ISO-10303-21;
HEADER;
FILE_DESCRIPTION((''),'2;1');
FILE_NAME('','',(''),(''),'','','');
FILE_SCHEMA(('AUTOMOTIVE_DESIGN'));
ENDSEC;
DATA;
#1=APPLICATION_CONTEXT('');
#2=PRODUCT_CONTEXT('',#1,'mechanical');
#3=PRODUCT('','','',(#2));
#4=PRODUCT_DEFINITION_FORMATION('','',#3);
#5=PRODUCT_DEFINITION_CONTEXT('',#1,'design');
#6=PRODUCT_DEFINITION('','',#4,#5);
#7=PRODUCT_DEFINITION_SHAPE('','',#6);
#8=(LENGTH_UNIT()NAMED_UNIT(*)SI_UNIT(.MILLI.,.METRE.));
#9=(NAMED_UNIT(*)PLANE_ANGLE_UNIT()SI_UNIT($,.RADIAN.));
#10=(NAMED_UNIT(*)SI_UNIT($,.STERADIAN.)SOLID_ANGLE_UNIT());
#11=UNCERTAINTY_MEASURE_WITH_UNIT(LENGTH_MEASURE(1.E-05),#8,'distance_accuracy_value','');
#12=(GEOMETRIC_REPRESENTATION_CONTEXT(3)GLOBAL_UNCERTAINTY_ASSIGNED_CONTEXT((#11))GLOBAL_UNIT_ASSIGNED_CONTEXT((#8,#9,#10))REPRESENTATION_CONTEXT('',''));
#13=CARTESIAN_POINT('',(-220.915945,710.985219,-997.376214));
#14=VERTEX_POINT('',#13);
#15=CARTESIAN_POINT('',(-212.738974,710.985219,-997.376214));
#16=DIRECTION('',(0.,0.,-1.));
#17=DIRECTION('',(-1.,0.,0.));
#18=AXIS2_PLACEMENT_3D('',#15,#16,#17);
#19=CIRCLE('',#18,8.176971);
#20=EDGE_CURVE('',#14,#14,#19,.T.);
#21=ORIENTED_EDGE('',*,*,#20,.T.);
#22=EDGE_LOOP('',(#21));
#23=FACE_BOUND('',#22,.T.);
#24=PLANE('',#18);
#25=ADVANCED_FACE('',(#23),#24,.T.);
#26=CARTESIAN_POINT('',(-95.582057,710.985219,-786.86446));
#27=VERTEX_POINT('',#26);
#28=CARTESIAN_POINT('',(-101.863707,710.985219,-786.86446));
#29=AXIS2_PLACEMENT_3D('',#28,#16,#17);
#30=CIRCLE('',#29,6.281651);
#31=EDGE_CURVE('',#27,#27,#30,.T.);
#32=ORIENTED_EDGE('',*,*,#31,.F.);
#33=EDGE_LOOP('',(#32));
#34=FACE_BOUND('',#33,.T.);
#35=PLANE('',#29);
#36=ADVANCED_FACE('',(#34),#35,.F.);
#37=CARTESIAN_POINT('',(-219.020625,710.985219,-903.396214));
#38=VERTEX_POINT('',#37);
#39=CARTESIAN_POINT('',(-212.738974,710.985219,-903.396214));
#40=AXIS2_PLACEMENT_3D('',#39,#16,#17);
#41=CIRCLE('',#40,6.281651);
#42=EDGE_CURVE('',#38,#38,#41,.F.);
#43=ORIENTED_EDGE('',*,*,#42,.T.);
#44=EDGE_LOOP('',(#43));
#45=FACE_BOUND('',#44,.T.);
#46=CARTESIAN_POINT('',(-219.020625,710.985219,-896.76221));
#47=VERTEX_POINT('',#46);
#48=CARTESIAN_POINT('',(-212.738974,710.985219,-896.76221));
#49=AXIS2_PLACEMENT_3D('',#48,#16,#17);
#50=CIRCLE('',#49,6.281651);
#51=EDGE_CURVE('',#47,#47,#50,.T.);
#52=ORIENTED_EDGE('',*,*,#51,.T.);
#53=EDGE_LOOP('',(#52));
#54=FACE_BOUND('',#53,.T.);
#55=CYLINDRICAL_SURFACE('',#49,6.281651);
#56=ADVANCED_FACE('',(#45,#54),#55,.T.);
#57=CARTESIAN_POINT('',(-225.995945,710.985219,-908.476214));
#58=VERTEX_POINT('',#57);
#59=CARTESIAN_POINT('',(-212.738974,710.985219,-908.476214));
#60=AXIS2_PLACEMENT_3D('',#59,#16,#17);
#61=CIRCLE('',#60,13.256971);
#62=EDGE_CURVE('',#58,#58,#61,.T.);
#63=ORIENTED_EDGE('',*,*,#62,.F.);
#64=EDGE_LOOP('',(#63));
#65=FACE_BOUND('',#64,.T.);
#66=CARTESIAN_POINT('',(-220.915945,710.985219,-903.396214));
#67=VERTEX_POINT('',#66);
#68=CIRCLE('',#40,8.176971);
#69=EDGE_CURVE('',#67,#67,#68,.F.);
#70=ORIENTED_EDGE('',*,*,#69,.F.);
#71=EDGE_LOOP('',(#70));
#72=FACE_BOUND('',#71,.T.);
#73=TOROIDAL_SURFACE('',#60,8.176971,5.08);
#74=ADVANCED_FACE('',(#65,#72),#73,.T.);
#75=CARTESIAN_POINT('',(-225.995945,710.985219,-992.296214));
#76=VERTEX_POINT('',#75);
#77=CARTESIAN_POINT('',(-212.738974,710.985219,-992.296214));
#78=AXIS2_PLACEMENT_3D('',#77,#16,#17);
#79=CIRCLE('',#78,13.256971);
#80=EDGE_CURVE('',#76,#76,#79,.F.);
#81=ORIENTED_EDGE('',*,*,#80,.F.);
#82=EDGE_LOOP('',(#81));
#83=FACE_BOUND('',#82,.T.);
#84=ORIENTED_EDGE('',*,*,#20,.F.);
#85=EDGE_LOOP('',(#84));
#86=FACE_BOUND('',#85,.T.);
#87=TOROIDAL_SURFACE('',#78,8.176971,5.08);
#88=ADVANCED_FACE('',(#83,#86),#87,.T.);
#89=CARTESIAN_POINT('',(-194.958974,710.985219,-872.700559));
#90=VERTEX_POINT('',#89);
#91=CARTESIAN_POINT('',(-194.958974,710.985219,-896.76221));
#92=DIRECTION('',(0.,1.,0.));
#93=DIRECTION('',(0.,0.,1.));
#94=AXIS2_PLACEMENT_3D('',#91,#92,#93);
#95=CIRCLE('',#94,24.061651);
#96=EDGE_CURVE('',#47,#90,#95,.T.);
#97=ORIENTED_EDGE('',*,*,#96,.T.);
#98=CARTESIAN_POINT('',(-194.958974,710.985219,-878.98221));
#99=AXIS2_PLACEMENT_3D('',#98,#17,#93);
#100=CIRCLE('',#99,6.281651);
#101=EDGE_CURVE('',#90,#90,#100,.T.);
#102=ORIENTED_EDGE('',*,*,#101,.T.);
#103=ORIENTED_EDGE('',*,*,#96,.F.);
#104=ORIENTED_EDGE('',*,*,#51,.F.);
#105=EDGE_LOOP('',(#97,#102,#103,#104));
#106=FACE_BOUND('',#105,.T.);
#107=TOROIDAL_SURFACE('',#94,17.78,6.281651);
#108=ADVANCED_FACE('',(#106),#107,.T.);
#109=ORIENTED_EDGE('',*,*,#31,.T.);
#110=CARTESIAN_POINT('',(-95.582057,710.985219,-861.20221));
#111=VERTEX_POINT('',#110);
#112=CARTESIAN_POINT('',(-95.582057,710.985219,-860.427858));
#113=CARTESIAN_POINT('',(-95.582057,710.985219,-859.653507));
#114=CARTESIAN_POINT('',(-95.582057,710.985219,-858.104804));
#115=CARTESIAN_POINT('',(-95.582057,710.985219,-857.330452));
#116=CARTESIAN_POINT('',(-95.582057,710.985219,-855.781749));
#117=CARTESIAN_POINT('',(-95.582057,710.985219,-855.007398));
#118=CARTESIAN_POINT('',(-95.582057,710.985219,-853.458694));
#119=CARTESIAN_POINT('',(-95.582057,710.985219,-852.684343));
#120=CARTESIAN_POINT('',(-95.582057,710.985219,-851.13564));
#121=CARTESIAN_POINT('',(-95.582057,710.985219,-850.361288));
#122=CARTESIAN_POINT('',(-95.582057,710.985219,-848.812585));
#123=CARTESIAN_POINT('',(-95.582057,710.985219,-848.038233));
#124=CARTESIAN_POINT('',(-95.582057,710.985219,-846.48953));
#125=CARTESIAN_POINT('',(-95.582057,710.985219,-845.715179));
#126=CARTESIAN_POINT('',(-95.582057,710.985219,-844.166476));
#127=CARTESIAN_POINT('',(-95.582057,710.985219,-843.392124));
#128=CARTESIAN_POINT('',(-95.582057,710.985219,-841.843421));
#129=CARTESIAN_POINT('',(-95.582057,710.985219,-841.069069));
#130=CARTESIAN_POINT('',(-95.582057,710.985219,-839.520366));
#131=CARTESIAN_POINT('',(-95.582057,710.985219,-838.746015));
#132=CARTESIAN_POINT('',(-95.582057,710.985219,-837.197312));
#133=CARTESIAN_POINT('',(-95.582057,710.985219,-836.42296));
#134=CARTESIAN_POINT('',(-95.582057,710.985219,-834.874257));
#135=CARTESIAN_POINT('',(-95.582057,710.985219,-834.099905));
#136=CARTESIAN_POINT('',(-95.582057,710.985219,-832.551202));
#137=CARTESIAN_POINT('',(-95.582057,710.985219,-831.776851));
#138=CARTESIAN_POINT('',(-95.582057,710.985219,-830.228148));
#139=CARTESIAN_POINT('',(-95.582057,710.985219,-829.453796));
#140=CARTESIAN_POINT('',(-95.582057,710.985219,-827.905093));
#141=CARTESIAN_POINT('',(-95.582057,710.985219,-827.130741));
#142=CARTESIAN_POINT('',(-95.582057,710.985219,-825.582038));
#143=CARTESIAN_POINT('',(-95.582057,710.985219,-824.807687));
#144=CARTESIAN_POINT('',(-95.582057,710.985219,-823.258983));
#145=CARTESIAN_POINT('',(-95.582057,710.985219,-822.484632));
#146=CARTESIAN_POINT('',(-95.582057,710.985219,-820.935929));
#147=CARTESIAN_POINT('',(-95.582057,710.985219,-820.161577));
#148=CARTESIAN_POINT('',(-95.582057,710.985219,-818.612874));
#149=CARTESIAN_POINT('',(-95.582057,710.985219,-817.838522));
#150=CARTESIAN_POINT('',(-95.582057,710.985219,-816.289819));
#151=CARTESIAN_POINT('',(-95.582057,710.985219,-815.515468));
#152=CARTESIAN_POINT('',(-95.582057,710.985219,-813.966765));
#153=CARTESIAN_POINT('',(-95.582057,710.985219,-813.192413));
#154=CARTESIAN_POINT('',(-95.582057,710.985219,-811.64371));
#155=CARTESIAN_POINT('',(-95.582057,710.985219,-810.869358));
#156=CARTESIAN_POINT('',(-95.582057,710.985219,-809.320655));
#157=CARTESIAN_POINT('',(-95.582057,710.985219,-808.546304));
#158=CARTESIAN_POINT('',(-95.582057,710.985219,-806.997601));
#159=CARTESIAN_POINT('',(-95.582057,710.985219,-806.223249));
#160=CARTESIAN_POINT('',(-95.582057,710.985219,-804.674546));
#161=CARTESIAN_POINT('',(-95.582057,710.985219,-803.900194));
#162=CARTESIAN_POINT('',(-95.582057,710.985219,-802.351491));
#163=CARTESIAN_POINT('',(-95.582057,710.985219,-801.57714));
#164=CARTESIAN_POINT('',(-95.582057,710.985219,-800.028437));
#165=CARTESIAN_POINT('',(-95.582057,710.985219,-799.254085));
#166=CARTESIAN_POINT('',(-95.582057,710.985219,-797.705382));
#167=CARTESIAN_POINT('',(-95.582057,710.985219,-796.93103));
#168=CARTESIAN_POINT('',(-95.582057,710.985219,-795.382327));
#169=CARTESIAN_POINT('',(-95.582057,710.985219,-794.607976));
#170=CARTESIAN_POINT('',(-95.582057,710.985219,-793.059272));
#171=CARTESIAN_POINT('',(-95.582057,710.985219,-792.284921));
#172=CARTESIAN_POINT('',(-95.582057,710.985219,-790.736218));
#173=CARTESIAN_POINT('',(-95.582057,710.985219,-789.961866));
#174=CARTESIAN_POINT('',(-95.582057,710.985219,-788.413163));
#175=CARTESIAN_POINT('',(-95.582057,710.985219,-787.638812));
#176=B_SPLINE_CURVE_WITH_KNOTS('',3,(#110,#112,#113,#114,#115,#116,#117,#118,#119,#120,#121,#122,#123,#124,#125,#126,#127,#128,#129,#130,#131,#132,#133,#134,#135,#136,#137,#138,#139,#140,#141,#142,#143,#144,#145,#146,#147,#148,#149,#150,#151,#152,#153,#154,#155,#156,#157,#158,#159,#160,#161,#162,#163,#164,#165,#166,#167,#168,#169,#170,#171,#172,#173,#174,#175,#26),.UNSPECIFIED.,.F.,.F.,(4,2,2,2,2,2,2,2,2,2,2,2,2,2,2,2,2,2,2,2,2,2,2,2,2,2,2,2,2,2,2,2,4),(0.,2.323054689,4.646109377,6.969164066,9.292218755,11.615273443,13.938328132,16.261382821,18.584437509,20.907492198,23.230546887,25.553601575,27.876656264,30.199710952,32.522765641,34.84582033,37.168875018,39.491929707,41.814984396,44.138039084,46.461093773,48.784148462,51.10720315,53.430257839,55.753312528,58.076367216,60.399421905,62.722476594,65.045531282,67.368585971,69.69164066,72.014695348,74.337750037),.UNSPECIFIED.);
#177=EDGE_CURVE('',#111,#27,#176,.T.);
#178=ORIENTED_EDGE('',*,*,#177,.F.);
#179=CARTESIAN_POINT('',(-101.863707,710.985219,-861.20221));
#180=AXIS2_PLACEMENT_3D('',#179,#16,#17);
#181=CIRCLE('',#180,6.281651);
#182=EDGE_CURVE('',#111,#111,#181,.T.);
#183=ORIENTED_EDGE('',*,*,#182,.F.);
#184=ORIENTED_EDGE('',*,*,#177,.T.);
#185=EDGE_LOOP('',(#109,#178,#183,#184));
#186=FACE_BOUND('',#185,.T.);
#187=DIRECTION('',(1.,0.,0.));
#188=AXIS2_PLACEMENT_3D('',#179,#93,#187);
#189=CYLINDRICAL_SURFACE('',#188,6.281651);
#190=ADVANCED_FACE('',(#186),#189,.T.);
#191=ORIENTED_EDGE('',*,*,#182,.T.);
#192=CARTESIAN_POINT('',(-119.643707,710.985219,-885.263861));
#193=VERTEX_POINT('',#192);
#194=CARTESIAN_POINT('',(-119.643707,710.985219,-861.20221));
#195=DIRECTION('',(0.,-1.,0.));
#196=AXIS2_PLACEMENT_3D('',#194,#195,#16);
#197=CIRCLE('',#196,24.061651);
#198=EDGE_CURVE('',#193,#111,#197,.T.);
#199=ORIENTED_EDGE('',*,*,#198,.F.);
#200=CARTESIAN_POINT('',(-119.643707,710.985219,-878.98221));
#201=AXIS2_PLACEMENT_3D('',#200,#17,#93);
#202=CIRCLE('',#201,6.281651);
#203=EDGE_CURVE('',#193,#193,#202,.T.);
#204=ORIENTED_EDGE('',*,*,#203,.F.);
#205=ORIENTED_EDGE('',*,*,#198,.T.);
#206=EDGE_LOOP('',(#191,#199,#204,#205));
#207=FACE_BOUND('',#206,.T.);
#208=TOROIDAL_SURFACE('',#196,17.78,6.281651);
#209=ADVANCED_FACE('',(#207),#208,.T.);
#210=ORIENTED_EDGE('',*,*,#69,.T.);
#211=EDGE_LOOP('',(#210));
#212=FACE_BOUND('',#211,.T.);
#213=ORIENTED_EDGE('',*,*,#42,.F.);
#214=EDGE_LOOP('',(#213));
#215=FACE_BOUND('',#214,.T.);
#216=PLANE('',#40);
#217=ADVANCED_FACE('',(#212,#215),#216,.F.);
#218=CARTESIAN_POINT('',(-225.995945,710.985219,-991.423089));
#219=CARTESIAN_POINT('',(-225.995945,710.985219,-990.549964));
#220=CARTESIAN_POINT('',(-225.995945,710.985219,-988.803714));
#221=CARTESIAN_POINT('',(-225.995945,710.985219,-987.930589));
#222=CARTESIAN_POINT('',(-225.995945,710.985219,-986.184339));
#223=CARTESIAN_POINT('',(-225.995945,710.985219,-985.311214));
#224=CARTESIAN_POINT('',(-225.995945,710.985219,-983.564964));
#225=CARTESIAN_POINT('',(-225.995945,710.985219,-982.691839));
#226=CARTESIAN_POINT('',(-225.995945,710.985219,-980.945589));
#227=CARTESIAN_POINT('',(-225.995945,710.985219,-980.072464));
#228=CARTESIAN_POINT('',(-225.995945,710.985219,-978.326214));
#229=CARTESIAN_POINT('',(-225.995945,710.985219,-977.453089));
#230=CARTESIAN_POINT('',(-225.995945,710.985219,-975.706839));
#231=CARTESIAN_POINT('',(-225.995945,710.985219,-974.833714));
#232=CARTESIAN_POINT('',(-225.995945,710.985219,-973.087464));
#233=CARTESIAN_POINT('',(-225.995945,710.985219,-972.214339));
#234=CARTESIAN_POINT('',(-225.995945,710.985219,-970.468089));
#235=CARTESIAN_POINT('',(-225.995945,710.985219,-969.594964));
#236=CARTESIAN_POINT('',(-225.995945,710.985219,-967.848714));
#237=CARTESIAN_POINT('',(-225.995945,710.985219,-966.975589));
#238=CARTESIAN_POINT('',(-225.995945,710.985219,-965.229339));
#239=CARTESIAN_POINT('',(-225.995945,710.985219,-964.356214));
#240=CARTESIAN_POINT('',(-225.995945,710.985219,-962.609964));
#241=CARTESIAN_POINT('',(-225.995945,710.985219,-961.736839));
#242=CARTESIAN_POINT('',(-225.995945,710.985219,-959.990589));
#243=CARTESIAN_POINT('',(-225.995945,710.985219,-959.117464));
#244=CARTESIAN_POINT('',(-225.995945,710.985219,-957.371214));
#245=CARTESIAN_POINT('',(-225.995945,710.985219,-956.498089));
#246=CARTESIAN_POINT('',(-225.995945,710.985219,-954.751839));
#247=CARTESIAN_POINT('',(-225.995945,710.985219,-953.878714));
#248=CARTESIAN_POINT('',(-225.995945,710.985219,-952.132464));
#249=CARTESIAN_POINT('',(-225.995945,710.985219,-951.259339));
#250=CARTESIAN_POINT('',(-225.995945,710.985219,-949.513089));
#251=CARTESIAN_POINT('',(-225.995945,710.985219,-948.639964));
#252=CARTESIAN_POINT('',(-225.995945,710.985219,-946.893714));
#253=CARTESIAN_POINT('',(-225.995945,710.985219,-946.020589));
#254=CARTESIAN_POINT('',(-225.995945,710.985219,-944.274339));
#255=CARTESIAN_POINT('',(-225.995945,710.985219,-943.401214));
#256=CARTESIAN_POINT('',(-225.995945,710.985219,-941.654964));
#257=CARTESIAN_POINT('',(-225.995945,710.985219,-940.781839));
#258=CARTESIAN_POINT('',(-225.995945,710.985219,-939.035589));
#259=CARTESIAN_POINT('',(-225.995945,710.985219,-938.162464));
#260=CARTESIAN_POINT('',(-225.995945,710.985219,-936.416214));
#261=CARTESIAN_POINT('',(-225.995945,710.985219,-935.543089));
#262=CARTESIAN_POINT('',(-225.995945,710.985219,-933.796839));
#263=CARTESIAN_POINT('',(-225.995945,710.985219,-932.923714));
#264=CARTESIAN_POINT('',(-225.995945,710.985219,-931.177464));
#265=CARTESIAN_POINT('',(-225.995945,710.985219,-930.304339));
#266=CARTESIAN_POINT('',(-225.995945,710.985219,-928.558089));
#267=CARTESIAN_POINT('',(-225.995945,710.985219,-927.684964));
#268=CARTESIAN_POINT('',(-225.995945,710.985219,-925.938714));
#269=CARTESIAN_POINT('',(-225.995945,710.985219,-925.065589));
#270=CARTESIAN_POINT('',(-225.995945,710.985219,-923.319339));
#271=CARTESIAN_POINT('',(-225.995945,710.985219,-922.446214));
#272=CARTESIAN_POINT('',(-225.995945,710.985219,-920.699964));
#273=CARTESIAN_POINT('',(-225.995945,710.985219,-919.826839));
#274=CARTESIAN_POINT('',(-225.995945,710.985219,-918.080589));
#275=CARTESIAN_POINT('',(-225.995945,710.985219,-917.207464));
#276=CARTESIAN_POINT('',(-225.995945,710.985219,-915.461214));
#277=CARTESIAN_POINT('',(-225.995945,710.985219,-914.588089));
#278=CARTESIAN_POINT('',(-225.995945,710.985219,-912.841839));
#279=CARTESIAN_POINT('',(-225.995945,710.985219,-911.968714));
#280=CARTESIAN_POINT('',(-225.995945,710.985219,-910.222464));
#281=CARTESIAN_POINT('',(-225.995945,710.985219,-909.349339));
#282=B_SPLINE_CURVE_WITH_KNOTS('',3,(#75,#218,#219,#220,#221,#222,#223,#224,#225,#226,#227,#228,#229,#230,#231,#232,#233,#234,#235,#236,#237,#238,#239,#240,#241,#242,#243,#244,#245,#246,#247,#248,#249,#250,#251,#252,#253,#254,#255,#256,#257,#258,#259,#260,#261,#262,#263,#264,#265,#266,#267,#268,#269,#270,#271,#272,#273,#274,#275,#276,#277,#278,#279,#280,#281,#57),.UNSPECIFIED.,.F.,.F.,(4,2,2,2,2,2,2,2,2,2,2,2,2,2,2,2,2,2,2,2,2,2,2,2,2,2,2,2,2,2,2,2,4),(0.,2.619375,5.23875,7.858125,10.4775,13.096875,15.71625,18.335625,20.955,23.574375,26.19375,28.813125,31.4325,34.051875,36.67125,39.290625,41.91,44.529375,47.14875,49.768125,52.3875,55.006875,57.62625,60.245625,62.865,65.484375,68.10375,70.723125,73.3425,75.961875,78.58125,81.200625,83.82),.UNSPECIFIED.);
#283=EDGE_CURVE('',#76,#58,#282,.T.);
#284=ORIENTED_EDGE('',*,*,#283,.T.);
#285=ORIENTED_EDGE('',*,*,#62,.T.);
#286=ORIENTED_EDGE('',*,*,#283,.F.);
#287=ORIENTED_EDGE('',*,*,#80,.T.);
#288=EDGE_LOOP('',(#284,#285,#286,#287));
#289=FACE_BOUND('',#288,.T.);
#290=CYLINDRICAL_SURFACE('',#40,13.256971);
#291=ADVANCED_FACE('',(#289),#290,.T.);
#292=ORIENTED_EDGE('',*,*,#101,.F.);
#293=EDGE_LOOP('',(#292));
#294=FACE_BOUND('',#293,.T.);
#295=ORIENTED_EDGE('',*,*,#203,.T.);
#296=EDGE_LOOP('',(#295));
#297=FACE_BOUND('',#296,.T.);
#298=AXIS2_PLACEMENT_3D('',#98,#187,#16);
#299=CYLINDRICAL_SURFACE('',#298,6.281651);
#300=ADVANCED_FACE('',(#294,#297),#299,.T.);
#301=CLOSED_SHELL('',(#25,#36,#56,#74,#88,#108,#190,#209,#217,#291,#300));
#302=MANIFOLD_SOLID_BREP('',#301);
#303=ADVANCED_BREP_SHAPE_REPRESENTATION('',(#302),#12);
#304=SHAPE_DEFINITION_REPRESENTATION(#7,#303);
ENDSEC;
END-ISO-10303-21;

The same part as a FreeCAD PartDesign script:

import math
import FreeCAD as App
import Part
import Sketcher
from FreeCAD import Vector
Q = App.Units.Quantity


def edges_at(feature, points):
    """Names of the edges that pass closest to the given points."""
    edges = feature.Shape.Edges
    near = lambda p: min(range(len(edges)), key=lambda i: edges[i].distToShape(Part.Vertex(*p))[0])
    return sorted({f"Edge{near(p) + 1}" for p in points})

doc = App.newDocument("Part")
body = doc.addObject("PartDesign::Body", "Body")

# Sketch on XY plane
sketch1 = body.newObject("Sketcher::SketchObject", "Sketch")
sketch1.AttachmentSupport = (doc.getObject("XY_Plane"), [""])
sketch1.MapMode = "FlatFace"
sketch1.AttachmentOffset = App.Placement(Vector(0, 0, -997.376214), App.Rotation())
sketch1.addGeometry(Part.Circle(Vector(-213, 711, 0), Vector(0, 0, 1), 6), False)
sketch1.addConstraint([
    Sketcher.Constraint("Diameter", 0, 12.563301),
    Sketcher.Constraint("DistanceY", -1, 1, 0, 3, 710.985219),
    Sketcher.Constraint("DistanceX", 0, 3, -1, 1, 212.738974),
])

# Sketch on XZ plane
sketch2 = body.newObject("Sketcher::SketchObject", "Sketch001")
sketch2.AttachmentSupport = (doc.getObject("XZ_Plane"), [""])
sketch2.MapMode = "FlatFace"
sketch2.AttachmentOffset = App.Placement(Vector(0, 0, -710.985219), App.Rotation())
sketch2.addGeometry([
    Part.LineSegment(Vector(-102, -787, 0), Vector(-102, -861, 0)),  # 0
    Part.ArcOfCircle(Part.Circle(Vector(-120, -861, 0), Vector(0, 0, 1), 18), math.radians(-90), math.radians(0)),  # 1
    Part.LineSegment(Vector(-120, -879, 0), Vector(-195, -879, 0)),  # 2
    Part.ArcOfCircle(Part.Circle(Vector(-195, -897, 0), Vector(0, 0, 1), 18), math.radians(90), math.radians(180)),  # 3
    Part.LineSegment(Vector(-213, -897, 0), Vector(-213, -997, 0)),  # 4
], False)
sketch2.addConstraint([
    Sketcher.Constraint("Tangent", 0, 2, 1, 2),
    Sketcher.Constraint("Tangent", 1, 1, 2, 1),
    Sketcher.Constraint("Tangent", 2, 2, 3, 1),
    Sketcher.Constraint("Tangent", 3, 2, 4, 1),
    Sketcher.Constraint("Vertical", 0),
    Sketcher.Constraint("Horizontal", 2),
    Sketcher.Constraint("Vertical", 4),
    Sketcher.Constraint("Equal", 1, 3),
    Sketcher.Constraint("Radius", 1, Q("0.7 in")),
    Sketcher.Constraint("DistanceY", 0, 2, 0, 1, 74.33775),
    Sketcher.Constraint("DistanceX", 2, 2, 2, 1, 75.315267),
    Sketcher.Constraint("DistanceY", 4, 2, 4, 1, 100.614004),
    Sketcher.Constraint("DistanceY", 1, 3, -1, 1, 861.20221),
    Sketcher.Constraint("DistanceX", 1, 3, -1, 1, 119.643707),
])
doc.recompute()

additivepipe = body.newObject("PartDesign::AdditivePipe", "AdditivePipe")
additivepipe.Profile = sketch1
additivepipe.Spine = (sketch2, ["Edge1", "Edge2", "Edge3", "Edge4", "Edge5"])

# Sketch on XY plane
sketch3 = body.newObject("Sketcher::SketchObject", "Sketch002")
sketch3.AttachmentSupport = (doc.getObject("XY_Plane"), [""])
sketch3.MapMode = "FlatFace"
sketch3.AttachmentOffset = App.Placement(Vector(0, 0, -997.376214), App.Rotation())
sketch3.addGeometry(Part.Circle(Vector(-213, 711, 0), Vector(0, 0, 1), 13), False)
sketch3.addConstraint([
    Sketcher.Constraint("Diameter", 0, 26.513941),
    Sketcher.Constraint("DistanceY", -1, 1, 0, 3, 710.985219),
    Sketcher.Constraint("DistanceX", 0, 3, -1, 1, 212.738974),
])
pad1 = body.newObject("PartDesign::Pad", "Pad")
pad1.Profile = sketch3
pad1.Length = Q("3.7 in")
doc.recompute()

fillet = body.newObject("PartDesign::Fillet", "Fillet")
fillet.Base = (pad1, edges_at(pad1, [(-199.482, 710.985, -903.396), (-199.482, 710.985, -997.376)]))
fillet.Radius = Q("0.2 in")

doc.recompute()
